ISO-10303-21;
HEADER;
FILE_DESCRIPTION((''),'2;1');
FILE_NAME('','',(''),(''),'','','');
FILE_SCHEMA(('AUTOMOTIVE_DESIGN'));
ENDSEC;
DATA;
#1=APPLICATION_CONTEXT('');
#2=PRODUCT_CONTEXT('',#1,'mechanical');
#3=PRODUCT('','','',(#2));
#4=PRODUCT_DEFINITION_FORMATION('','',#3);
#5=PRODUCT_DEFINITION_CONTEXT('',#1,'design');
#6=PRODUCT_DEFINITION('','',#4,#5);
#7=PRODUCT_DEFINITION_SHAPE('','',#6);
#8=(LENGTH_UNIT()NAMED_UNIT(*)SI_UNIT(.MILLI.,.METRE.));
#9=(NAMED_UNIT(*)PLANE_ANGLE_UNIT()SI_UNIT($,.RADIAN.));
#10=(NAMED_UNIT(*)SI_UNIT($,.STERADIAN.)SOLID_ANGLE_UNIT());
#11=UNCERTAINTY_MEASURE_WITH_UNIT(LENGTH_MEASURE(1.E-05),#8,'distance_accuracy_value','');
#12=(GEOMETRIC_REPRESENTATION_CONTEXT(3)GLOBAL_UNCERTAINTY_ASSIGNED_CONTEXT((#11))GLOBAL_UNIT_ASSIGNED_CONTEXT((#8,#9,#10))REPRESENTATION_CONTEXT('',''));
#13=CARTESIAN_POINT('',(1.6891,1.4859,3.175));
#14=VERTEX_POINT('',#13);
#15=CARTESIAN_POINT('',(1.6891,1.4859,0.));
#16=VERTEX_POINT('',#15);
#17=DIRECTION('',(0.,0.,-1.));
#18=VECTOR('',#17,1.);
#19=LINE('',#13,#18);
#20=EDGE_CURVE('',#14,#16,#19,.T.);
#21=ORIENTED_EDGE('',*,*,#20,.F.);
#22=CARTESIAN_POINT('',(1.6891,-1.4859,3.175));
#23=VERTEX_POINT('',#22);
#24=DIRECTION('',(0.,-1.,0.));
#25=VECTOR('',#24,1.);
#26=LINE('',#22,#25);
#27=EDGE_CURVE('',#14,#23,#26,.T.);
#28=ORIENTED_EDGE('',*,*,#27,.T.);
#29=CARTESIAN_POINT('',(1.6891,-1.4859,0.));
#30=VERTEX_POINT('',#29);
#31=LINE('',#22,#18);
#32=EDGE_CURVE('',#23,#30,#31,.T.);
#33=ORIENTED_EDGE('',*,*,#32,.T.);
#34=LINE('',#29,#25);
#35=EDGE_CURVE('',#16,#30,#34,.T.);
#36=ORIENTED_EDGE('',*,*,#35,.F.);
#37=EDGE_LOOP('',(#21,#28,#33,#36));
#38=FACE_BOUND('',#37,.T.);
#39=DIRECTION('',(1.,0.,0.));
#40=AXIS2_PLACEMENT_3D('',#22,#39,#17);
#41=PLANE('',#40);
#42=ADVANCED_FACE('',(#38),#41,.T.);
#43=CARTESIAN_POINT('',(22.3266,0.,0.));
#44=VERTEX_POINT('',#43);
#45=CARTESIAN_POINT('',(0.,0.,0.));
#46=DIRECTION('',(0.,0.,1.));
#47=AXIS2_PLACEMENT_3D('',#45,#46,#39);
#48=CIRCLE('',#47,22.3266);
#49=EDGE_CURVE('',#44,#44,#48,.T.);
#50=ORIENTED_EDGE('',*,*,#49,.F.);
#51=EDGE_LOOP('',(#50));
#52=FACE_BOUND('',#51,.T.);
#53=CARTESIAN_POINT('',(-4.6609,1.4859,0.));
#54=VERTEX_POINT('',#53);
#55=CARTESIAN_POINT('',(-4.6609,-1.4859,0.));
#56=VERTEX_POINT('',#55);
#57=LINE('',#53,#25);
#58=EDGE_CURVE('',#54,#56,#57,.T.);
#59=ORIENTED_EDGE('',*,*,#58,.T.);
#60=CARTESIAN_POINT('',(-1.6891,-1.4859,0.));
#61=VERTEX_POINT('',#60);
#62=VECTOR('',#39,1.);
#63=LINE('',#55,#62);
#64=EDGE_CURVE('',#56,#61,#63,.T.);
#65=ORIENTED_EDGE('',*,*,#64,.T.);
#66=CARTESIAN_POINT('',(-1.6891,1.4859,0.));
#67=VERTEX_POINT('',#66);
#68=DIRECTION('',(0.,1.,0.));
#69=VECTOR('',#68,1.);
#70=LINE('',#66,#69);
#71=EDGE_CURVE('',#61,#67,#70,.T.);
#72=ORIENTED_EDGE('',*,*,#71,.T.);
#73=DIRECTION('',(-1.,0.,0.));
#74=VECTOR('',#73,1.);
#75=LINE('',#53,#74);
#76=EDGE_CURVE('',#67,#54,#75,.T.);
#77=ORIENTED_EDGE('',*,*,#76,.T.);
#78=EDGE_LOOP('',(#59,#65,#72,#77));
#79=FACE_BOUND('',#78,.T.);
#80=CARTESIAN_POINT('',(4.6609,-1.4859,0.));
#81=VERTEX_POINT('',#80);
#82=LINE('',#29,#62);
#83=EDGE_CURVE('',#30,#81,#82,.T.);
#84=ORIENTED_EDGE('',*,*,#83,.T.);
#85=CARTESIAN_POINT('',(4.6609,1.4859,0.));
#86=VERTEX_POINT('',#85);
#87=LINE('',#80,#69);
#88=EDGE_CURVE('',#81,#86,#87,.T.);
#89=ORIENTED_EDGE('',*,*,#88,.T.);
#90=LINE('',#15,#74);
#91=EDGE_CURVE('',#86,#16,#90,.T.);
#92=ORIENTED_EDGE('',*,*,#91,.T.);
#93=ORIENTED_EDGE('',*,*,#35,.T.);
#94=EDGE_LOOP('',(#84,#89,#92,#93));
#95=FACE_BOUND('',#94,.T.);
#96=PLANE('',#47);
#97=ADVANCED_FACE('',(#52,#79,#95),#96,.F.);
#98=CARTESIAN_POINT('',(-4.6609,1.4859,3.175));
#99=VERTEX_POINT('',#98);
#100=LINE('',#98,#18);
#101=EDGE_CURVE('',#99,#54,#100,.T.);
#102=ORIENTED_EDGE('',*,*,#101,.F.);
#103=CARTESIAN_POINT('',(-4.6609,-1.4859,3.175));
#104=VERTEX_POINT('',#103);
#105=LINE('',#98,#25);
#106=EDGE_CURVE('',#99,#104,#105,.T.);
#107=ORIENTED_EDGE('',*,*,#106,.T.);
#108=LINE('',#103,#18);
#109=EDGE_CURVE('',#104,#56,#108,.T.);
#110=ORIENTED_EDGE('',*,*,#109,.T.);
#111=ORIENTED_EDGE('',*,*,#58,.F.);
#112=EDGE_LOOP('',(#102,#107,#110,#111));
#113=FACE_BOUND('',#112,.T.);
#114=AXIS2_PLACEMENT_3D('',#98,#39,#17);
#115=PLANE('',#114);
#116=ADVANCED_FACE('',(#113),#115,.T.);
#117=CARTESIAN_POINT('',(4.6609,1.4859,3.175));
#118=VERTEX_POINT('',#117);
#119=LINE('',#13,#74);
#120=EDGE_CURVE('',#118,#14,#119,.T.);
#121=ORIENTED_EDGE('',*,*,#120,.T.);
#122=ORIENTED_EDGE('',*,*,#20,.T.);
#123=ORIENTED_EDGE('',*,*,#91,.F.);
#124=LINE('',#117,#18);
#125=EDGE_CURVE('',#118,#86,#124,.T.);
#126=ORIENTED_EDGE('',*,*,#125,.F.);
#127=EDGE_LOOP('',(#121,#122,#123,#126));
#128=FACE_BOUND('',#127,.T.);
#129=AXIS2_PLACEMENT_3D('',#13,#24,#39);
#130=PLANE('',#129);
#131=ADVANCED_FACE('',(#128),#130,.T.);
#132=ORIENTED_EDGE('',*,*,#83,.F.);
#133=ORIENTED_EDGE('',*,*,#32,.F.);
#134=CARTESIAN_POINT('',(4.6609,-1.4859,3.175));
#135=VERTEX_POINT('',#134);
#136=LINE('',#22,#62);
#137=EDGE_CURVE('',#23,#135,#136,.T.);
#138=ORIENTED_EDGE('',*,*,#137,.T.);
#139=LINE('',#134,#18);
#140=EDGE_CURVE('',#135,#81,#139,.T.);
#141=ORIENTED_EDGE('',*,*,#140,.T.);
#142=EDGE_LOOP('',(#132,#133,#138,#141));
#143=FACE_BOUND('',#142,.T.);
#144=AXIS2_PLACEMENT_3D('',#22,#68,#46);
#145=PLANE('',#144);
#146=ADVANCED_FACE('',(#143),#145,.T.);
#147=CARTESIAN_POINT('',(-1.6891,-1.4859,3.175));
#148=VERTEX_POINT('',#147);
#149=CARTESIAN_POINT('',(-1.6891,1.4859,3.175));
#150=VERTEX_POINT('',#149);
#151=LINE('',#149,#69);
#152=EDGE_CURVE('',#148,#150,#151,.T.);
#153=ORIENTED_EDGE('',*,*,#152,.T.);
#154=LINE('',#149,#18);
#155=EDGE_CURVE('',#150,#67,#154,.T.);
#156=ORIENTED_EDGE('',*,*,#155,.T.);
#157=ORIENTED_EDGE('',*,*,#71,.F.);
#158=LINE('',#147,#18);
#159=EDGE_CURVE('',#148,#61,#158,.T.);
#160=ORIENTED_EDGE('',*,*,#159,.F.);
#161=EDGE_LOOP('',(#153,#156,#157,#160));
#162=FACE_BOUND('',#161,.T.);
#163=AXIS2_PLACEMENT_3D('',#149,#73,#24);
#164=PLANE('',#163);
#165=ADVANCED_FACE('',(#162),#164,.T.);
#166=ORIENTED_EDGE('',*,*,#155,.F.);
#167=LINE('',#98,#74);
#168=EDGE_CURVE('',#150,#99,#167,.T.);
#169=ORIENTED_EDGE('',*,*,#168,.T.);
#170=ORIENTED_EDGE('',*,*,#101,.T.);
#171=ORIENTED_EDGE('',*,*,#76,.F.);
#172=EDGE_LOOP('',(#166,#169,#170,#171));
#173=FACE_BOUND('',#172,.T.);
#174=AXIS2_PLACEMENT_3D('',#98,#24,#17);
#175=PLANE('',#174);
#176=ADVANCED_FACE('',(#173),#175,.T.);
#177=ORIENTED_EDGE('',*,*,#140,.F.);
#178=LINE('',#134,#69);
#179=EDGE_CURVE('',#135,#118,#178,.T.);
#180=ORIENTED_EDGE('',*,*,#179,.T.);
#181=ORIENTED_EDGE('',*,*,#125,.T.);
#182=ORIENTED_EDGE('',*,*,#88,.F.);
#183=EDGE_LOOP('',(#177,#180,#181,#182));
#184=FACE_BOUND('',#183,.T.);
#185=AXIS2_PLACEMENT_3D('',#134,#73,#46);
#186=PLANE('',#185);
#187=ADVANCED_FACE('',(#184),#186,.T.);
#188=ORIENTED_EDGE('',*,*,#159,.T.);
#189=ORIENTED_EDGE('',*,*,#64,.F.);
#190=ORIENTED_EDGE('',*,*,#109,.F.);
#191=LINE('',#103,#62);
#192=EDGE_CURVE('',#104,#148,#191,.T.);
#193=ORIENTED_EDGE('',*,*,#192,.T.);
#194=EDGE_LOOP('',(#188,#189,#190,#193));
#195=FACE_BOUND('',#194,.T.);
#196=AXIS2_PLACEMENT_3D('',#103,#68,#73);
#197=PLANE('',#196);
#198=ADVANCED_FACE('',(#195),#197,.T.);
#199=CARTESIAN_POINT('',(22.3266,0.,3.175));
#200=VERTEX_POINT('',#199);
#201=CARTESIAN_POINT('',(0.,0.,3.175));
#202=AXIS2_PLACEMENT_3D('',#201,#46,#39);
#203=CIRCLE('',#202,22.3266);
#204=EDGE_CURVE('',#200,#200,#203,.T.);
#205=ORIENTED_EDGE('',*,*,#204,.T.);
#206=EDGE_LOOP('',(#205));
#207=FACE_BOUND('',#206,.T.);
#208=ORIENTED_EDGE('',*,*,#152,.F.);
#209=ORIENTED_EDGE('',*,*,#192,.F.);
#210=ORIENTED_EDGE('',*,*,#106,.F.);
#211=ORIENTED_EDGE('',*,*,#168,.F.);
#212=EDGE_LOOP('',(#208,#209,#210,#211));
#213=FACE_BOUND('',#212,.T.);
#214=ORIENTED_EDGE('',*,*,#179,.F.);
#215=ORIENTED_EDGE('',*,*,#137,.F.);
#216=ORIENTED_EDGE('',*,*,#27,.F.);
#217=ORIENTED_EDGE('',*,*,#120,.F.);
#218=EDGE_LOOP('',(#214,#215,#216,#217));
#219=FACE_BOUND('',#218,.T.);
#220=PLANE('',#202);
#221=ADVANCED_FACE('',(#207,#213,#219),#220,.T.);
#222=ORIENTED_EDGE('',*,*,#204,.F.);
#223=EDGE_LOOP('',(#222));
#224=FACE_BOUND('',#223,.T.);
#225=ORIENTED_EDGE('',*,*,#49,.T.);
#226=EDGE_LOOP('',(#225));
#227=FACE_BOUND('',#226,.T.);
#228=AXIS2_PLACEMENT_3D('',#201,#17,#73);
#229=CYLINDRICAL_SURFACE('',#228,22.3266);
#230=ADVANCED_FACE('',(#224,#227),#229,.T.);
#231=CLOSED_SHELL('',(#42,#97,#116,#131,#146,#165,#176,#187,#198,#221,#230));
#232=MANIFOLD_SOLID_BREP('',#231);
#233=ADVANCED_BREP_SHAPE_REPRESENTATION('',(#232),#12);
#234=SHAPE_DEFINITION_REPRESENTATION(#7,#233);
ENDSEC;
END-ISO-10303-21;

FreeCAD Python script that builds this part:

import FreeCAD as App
import Part
import Sketcher
Q = App.Units.Quantity


def add_polygon(sketch, points):
    """Adds a closed chain of lines whose ends are joined by coincident constraints."""
    first, n = sketch.GeometryCount, len(points)
    for a, b in zip(points, points[1:] + points[:1]):
        sketch.addGeometry(Part.LineSegment(App.Vector(*a, 0), App.Vector(*b, 0)), False)
    for i in range(n):
        sketch.addConstraint(Sketcher.Constraint("Coincident", first + i, 2, first + (i + 1) % n, 1))

doc = App.newDocument("Part")
params = doc.addObject("Spreadsheet::Sheet", "Params")
for row, (alias, value) in enumerate([
    ("sketch1_diameter", "1.758 in"),
    ("sketch1_width", "0.117 in"),
    ("pad1_length", "0.125 in"),
], start=1):
    params.set(f"A{row}", alias)
    params.set(f"B{row}", "=" + value)
    params.setAlias(f"B{row}", alias)

body = doc.addObject("PartDesign::Body", "Body")

sketch1 = body.newObject("Sketcher::SketchObject", "Sketch")
sketch1.AttachmentSupport = (doc.getObject("XY_Plane"), [""])
sketch1.MapMode = "FlatFace"
sketch1.addGeometry(Part.Circle(App.Vector(0, 0, 0), App.Vector(0, 0, 1), 22.3), False)
add_polygon(sketch1, [(-1.7, -1.5), (-4.7, -1.5), (-4.7, 1.5), (-1.7, 1.5)])
add_polygon(sketch1, [(4.7, -1.5), (1.7, -1.5), (1.7, 1.5), (4.7, 1.5)])
sketch1.addConstraint([
    Sketcher.Constraint("Horizontal", 1),
    Sketcher.Constraint("Vertical", 2),
    Sketcher.Constraint("Horizontal", 3),
    Sketcher.Constraint("Vertical", 4),
    Sketcher.Constraint("Horizontal", 5),
    Sketcher.Constraint("Vertical", 6),
    Sketcher.Constraint("Horizontal", 7),
    Sketcher.Constraint("Vertical", 8),
    Sketcher.Constraint("Coincident", 0, 3, -1, 1),
    Sketcher.Constraint("Symmetric", 3, 2, 5, 2, -1, 1),
    Sketcher.Constraint("Symmetric", 1, 2, 7, 2, -1, 1),
    Sketcher.Constraint("Horizontal", 4, 2, 5, 2),
    Sketcher.Constraint("Equal", 7, 2),
    Sketcher.Constraint("Diameter", 0, Q("1.758 in")),
    Sketcher.Constraint("DistanceX", 1, 2, 1, 1, Q("0.117 in")),
    Sketcher.Constraint("DistanceX", 1, 2, 5, 2, Q("0.25 in")),
])
sketch1.setExpression("Constraints[21]", "Params.sketch1_diameter")
sketch1.setExpression("Constraints[22]", "Params.sketch1_width")
pad1 = body.newObject("PartDesign::Pad", "Pad")
pad1.Profile = sketch1
pad1.setExpression("Length", "Params.pad1_length")

doc.recompute()
